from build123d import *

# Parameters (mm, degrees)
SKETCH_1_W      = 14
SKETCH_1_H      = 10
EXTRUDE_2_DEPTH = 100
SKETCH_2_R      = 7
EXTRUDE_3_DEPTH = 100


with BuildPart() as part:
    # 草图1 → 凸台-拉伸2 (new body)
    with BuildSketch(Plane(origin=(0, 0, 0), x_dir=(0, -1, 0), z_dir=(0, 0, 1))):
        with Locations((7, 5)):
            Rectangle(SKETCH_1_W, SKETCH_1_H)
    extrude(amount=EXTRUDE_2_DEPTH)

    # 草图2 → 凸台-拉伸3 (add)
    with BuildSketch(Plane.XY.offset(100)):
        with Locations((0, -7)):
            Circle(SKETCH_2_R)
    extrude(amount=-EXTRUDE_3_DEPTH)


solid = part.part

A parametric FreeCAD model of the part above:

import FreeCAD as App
import Part
import Sketcher
from FreeCAD import Vector


def add_polygon(sketch, points):
    """Adds a closed chain of lines whose ends are joined by coincident constraints."""
    first, n = sketch.GeometryCount, len(points)
    for a, b in zip(points, points[1:] + points[:1]):
        sketch.addGeometry(Part.LineSegment(App.Vector(*a, 0), App.Vector(*b, 0)), False)
    for i in range(n):
        sketch.addConstraint(Sketcher.Constraint("Coincident", first + i, 2, first + (i + 1) % n, 1))

doc = App.newDocument("Part")
params = doc.addObject("Spreadsheet::Sheet", "Params")
for row, (alias, value) in enumerate([
    ("sketch1_width", "10 mm"),
    ("sketch1_height", "14 mm"),
    ("pad1_length", "100 mm"),
    ("sketch2_diameter", "14 mm"),
    ("pad2_length", "100 mm"),
], start=1):
    params.set(f"A{row}", alias)
    params.set(f"B{row}", "=" + value)
    params.setAlias(f"B{row}", alias)

body = doc.addObject("PartDesign::Body", "Body")

# Sketch on XY plane
sketch1 = body.newObject("Sketcher::SketchObject", "Sketch")
sketch1.AttachmentSupport = (doc.getObject("XY_Plane"), [""])
sketch1.MapMode = "FlatFace"
add_polygon(sketch1, [(10, 0), (0, 0), (0, -14), (10, -14)])  # lines 0-3
sketch1.addConstraint([
    Sketcher.Constraint("Horizontal", 0),
    Sketcher.Constraint("Vertical", 1),
    Sketcher.Constraint("Horizontal", 2),
    Sketcher.Constraint("Vertical", 3),
    Sketcher.Constraint("Coincident", 0, 2, -1, 1),
    Sketcher.Constraint("DistanceX", 0, 2, 0, 1, 10.0),
    Sketcher.Constraint("DistanceY", 1, 2, 1, 1, 14.0),
])
sketch1.setExpression("Constraints[9]", "Params.sketch1_width")
sketch1.setExpression("Constraints[10]", "Params.sketch1_height")
pad1 = body.newObject("PartDesign::Pad", "Pad")
pad1.Profile = sketch1
pad1.setExpression("Length", "Params.pad1_length")

# Sketch on XY plane
sketch2 = body.newObject("Sketcher::SketchObject", "Sketch001")
sketch2.AttachmentSupport = (doc.getObject("XY_Plane"), [""])
sketch2.MapMode = "FlatFace"
sketch2.AttachmentOffset = App.Placement(Vector(0, 0, 100), App.Rotation())
sketch2.addGeometry(Part.Circle(Vector(0, -7, 0), Vector(0, 0, 1), 7), False)
sketch2.addConstraint([
    Sketcher.Constraint("PointOnObject", 0, 3, -2),
    Sketcher.Constraint("Diameter", 0, 14.0),
    Sketcher.Constraint("DistanceY", 0, 3, -1, 1, 7.0),
])
sketch2.setExpression("Constraints[1]", "Params.sketch2_diameter")
pad2 = body.newObject("PartDesign::Pad", "Pad001")
pad2.Profile = sketch2
pad2.setExpression("Length", "Params.pad2_length")
pad2.Reversed = True

doc.recompute()
